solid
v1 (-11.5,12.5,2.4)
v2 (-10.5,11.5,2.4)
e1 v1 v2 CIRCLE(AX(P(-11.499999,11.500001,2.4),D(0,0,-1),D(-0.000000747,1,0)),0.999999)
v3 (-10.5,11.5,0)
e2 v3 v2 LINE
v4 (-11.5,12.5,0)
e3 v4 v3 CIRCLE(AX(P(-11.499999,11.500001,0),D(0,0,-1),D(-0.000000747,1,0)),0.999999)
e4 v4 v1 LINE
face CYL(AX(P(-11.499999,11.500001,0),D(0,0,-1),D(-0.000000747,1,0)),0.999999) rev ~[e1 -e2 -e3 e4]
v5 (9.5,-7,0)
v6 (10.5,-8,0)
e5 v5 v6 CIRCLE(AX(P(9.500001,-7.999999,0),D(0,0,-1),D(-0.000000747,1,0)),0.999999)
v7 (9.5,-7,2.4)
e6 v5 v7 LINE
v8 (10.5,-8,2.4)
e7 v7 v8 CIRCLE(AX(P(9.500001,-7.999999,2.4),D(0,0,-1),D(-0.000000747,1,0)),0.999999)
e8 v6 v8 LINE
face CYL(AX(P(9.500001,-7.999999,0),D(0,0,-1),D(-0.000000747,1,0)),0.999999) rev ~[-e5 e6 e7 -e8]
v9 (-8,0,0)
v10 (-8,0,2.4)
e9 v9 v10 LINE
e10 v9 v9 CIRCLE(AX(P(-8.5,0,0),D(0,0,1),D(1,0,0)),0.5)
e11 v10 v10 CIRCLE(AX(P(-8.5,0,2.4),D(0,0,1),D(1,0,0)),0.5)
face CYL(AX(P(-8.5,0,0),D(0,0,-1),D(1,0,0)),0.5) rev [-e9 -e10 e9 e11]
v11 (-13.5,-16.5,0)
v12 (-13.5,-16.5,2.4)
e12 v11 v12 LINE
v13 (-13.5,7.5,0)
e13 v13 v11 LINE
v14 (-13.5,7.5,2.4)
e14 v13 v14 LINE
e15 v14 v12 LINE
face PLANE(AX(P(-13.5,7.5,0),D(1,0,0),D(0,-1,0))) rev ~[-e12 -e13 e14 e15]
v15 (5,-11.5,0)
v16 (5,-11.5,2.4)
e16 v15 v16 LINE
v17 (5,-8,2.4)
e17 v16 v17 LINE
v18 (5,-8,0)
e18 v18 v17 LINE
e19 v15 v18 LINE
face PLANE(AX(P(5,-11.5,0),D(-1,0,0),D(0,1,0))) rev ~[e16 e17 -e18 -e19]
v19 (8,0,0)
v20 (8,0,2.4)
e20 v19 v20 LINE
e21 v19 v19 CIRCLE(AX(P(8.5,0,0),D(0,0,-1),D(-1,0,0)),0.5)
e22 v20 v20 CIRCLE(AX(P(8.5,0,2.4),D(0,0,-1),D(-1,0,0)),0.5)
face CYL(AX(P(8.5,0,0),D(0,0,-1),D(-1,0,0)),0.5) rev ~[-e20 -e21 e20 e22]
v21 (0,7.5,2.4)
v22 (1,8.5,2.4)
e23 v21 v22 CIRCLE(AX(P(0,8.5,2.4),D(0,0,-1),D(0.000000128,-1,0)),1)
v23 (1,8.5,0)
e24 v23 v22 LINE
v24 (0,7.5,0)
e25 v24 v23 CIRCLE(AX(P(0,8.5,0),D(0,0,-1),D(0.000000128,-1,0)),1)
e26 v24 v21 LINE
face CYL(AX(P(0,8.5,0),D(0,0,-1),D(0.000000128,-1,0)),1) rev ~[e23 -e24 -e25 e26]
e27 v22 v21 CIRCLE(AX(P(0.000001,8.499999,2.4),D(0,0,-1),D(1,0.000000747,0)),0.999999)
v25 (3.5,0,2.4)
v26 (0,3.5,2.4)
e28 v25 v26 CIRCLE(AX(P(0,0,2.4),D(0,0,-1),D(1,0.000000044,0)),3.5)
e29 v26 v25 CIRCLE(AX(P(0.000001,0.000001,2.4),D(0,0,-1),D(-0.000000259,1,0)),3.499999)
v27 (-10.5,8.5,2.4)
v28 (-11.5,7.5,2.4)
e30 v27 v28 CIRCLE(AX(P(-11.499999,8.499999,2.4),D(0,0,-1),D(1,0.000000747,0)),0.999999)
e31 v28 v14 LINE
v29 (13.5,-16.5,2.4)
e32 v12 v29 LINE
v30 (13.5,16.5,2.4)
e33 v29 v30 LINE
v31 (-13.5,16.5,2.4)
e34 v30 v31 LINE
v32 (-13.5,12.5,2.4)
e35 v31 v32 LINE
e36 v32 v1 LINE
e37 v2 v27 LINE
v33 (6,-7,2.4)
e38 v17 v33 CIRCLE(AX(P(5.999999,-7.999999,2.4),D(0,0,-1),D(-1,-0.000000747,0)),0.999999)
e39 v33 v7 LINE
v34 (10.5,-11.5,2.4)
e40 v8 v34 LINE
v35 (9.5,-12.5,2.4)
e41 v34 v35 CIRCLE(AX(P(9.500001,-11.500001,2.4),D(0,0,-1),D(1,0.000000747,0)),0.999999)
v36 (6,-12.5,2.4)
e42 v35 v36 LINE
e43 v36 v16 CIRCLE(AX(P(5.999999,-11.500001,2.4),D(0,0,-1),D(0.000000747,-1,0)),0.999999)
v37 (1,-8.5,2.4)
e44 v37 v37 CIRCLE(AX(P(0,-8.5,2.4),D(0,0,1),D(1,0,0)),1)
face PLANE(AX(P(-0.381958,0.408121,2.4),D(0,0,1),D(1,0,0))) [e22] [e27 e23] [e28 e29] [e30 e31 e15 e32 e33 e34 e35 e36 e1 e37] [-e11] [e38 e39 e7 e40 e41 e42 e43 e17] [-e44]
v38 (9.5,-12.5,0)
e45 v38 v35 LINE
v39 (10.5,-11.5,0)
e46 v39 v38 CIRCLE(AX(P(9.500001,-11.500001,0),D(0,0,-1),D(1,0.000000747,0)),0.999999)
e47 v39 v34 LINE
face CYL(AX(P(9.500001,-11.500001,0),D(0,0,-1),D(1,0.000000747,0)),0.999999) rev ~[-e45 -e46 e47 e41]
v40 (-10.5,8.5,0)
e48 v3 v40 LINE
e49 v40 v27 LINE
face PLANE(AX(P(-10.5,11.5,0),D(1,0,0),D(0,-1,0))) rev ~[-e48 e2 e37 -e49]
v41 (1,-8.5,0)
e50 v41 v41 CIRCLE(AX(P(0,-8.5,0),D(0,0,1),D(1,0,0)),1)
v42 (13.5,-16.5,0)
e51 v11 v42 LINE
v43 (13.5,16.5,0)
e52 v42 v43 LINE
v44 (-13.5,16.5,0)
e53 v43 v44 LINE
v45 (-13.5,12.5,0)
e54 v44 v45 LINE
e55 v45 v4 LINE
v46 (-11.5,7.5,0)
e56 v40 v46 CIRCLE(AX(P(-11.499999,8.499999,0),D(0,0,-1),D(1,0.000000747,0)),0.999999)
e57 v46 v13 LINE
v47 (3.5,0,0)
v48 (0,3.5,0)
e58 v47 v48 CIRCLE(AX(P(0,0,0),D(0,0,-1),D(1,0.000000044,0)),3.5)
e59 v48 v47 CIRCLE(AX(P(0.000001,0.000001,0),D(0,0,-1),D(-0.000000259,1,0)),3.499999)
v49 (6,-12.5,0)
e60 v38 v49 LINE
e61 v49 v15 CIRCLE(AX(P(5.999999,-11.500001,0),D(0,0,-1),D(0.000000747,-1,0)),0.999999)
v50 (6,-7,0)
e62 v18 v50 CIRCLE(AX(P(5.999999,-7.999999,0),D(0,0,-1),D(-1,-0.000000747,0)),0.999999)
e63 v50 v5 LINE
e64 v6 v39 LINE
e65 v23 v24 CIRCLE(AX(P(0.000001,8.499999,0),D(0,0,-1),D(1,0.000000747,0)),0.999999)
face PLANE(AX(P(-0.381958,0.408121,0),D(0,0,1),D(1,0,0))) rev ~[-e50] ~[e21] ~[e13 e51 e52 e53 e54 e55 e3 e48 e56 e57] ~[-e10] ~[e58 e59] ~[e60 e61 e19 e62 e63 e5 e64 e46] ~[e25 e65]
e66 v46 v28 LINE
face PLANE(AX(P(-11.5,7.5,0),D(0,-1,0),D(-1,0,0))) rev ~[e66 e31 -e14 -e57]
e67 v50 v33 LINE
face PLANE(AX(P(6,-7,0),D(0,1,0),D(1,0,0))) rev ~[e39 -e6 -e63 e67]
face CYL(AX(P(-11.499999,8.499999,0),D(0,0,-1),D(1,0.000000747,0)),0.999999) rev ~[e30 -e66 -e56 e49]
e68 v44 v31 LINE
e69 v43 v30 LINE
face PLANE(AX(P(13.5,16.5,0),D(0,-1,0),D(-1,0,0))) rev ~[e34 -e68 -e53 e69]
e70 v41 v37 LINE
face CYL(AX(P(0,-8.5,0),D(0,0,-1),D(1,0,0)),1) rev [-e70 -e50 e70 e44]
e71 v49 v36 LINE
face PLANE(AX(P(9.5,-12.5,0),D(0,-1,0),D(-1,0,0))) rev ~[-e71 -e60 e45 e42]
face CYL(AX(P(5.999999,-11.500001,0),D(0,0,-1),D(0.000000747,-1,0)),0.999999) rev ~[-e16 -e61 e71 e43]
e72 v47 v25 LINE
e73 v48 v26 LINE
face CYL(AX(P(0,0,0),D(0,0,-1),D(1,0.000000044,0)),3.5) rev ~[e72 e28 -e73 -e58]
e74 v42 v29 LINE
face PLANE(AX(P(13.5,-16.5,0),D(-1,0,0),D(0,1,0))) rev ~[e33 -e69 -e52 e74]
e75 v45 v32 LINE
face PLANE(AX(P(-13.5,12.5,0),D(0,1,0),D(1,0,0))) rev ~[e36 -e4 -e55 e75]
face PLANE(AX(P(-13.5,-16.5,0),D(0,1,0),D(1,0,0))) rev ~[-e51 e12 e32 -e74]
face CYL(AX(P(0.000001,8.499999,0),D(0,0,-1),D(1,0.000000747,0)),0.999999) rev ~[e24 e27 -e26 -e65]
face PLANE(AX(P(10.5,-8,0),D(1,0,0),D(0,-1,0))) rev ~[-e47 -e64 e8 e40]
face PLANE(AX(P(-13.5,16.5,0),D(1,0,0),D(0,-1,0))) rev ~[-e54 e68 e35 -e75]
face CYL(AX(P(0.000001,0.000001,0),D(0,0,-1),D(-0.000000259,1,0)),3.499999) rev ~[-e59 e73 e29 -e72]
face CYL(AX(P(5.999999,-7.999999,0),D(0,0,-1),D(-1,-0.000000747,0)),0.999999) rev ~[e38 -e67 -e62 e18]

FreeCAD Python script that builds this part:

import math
import FreeCAD as App
import Part
import Sketcher

V = App.Vector
Q = App.Units.Quantity

doc = App.newDocument("Part")
params = doc.addObject("Spreadsheet::Sheet", "Params")
for row, (alias, value) in enumerate([
    ("sketch1_diameter", "2 mm"),
    ("sketch1_diameter2", "1 mm"),
    ("sketch1_radius", "3.5 mm"),
    ("sketch1_width", "27 mm"),
    ("sketch1_width2", "2 mm"),
    ("pad1_length", "2.4 mm"),
], start=1):
    params.set(f"A{row}", alias)
    params.set(f"B{row}", "=" + value)
    params.setAlias(f"B{row}", alias)

body = doc.addObject("PartDesign::Body", "Body")

# Sketch on XY plane
sketch1 = doc.addObject("Sketcher::SketchObject", "Sketch")
body.addObject(sketch1)
sketch1.AttachmentSupport = (doc.XY_Plane, [""])
sketch1.MapMode = "FlatFace"
sketch1.addGeometry(Part.LineSegment(V(-13.5, -16.5, 0), V(13.5, -16.5, 0)), False)
sketch1.addGeometry(Part.LineSegment(V(13.5, -16.5, 0), V(13.5, 16.5, 0)), False)
sketch1.addGeometry(Part.LineSegment(V(13.5, 16.5, 0), V(-13.5, 16.5, 0)), False)
sketch1.addGeometry(Part.LineSegment(V(-13.5, 16.5, 0), V(-13.5, 12.5, 0)), False)
sketch1.addGeometry(Part.LineSegment(V(-13.5, 12.5, 0), V(-11.5, 12.5, 0)), False)
sketch1.addGeometry(Part.ArcOfCircle(Part.Circle(V(-11.5, 11.5, 0), V(0, 0, 1), 1), math.radians(0), math.radians(90)), False)
sketch1.addGeometry(Part.LineSegment(V(-10.5, 11.5, 0), V(-10.5, 8.5, 0)), False)
sketch1.addGeometry(Part.ArcOfCircle(Part.Circle(V(-11.5, 8.5, 0), V(0, 0, 1), 1), math.radians(-90), math.radians(0)), False)
sketch1.addGeometry(Part.LineSegment(V(-11.5, 7.5, 0), V(-13.5, 7.5, 0)), False)
sketch1.addGeometry(Part.LineSegment(V(-13.5, 7.5, 0), V(-13.5, -16.5, 0)), False)
sketch1.addGeometry(Part.Circle(V(0, -8.5, 0), V(0, 0, 1), 1), False)
sketch1.addGeometry(Part.LineSegment(V(10.5, -8, 0), V(10.5, -11.5, 0)), False)
sketch1.addGeometry(Part.ArcOfCircle(Part.Circle(V(9.5, -11.5, 0), V(0, 0, 1), 1), math.radians(-90), math.radians(0)), False)
sketch1.addGeometry(Part.LineSegment(V(9.5, -12.5, 0), V(6, -12.5, 0)), False)
sketch1.addGeometry(Part.ArcOfCircle(Part.Circle(V(6, -11.5, 0), V(0, 0, 1), 1), math.radians(180), math.radians(270)), False)
sketch1.addGeometry(Part.LineSegment(V(5, -11.5, 0), V(5, -8, 0)), False)
sketch1.addGeometry(Part.ArcOfCircle(Part.Circle(V(6, -8, 0), V(0, 0, 1), 1), math.radians(90), math.radians(180)), False)
sketch1.addGeometry(Part.LineSegment(V(6, -7, 0), V(9.5, -7, 0)), False)
sketch1.addGeometry(Part.ArcOfCircle(Part.Circle(V(9.5, -8, 0), V(0, 0, 1), 1), math.radians(0), math.radians(90)), False)
sketch1.addGeometry(Part.Circle(V(-8.5, 0, 0), V(0, 0, 1), 0.5), False)
sketch1.addGeometry(Part.ArcOfCircle(Part.Circle(V(0, 0, 0), V(0, 0, 1), 3.5), math.radians(90), math.radians(360)), False)
sketch1.addGeometry(Part.ArcOfCircle(Part.Circle(V(0, 0, 0), V(0, 0, 1), 3.5), math.radians(0), math.radians(90)), False)
sketch1.addGeometry(Part.ArcOfCircle(Part.Circle(V(0, 8.5, 0), V(0, 0, 1), 1), math.radians(0), math.radians(270)), False)
sketch1.addGeometry(Part.ArcOfCircle(Part.Circle(V(0, 8.5, 0), V(0, 0, 1), 1), math.radians(-90), math.radians(0)), False)
sketch1.addGeometry(Part.Circle(V(8.5, 0, 0), V(0, 0, 1), 0.5), False)
sketch1.addConstraint(Sketcher.Constraint("Coincident", 0, 2, 1, 1))
sketch1.addConstraint(Sketcher.Constraint("Coincident", 1, 2, 2, 1))
sketch1.addConstraint(Sketcher.Constraint("Coincident", 2, 2, 3, 1))
sketch1.addConstraint(Sketcher.Constraint("Coincident", 3, 2, 4, 1))
sketch1.addConstraint(Sketcher.Constraint("Tangent", 4, 2, 5, 2))
sketch1.addConstraint(Sketcher.Constraint("Tangent", 5, 1, 6, 1))
sketch1.addConstraint(Sketcher.Constraint("Tangent", 6, 2, 7, 2))
sketch1.addConstraint(Sketcher.Constraint("Tangent", 7, 1, 8, 1))
sketch1.addConstraint(Sketcher.Constraint("Coincident", 8, 2, 9, 1))
sketch1.addConstraint(Sketcher.Constraint("Coincident", 9, 2, 0, 1))
sketch1.addConstraint(Sketcher.Constraint("Tangent", 11, 2, 12, 2))
sketch1.addConstraint(Sketcher.Constraint("Tangent", 12, 1, 13, 1))
sketch1.addConstraint(Sketcher.Constraint("Tangent", 13, 2, 14, 2))
sketch1.addConstraint(Sketcher.Constraint("Tangent", 14, 1, 15, 1))
sketch1.addConstraint(Sketcher.Constraint("Tangent", 15, 2, 16, 2))
sketch1.addConstraint(Sketcher.Constraint("Tangent", 16, 1, 17, 1))
sketch1.addConstraint(Sketcher.Constraint("Tangent", 17, 2, 18, 2))
sketch1.addConstraint(Sketcher.Constraint("Tangent", 18, 1, 11, 1))
sketch1.addConstraint(Sketcher.Constraint("Tangent", 20, 1, 21, 2))
sketch1.addConstraint(Sketcher.Constraint("Coincident", 21, 1, 20, 2))
sketch1.addConstraint(Sketcher.Constraint("Tangent", 22, 1, 23, 2))
sketch1.addConstraint(Sketcher.Constraint("Coincident", 23, 1, 22, 2))
sketch1.addConstraint(Sketcher.Constraint("Horizontal", 0))
sketch1.addConstraint(Sketcher.Constraint("Vertical", 1))
sketch1.addConstraint(Sketcher.Constraint("Horizontal", 2))
sketch1.addConstraint(Sketcher.Constraint("Vertical", 3))
sketch1.addConstraint(Sketcher.Constraint("Horizontal", 4))
sketch1.addConstraint(Sketcher.Constraint("Vertical", 6))
sketch1.addConstraint(Sketcher.Constraint("Horizontal", 8))
sketch1.addConstraint(Sketcher.Constraint("Vertical", 9))
sketch1.addConstraint(Sketcher.Constraint("Vertical", 11))
sketch1.addConstraint(Sketcher.Constraint("Horizontal", 13))
sketch1.addConstraint(Sketcher.Constraint("Vertical", 15))
sketch1.addConstraint(Sketcher.Constraint("Horizontal", 17))
sketch1.addConstraint(Sketcher.Constraint("Coincident", 20, 3, -1, 1))
sketch1.addConstraint(Sketcher.Constraint("Equal", 5, 7))
sketch1.addConstraint(Sketcher.Constraint("Equal", 7, 10))
sketch1.addConstraint(Sketcher.Constraint("Equal", 10, 12))
sketch1.addConstraint(Sketcher.Constraint("Equal", 12, 14))
sketch1.addConstraint(Sketcher.Constraint("Equal", 14, 16))
sketch1.addConstraint(Sketcher.Constraint("Equal", 16, 18))
sketch1.addConstraint(Sketcher.Constraint("Equal", 18, 22))
sketch1.addConstraint(Sketcher.Constraint("Equal", 19, 24))
sketch1.addConstraint(Sketcher.Constraint("Symmetric", 10, 3, 22, 3, -1, 1))
sketch1.addConstraint(Sketcher.Constraint("Symmetric", 19, 3, 24, 3, -1, 1))
sketch1.addConstraint(Sketcher.Constraint("Symmetric", 0, 2, 2, 2, -1, 1))
sketch1.addConstraint(Sketcher.Constraint("Symmetric", 5, 1, 11, 2, -1, 1))
sketch1.addConstraint(Sketcher.Constraint("PointOnObject", 10, 3, -2))
sketch1.addConstraint(Sketcher.Constraint("PointOnObject", 19, 3, -1))
sketch1.addConstraint(Sketcher.Constraint("PointOnObject", 20, 1, -2))
sketch1.addConstraint(Sketcher.Constraint("PointOnObject", 21, 1, -1))
sketch1.addConstraint(Sketcher.Constraint("PointOnObject", 23, 1, -2))
sketch1.addConstraint(Sketcher.Constraint("Horizontal", 7, 3, 22, 3))
sketch1.addConstraint(Sketcher.Constraint("Horizontal", 6, 2, 22, 1))
sketch1.addConstraint(Sketcher.Constraint("Vertical", 3, 2, 8, 2))
sketch1.addConstraint(Sketcher.Constraint("Equal", 17, 11))
sketch1.addConstraint(Sketcher.Constraint("Diameter", 10, Q("2 mm")))
sketch1.addConstraint(Sketcher.Constraint("Diameter", 19, Q("1 mm")))
sketch1.addConstraint(Sketcher.Constraint("Radius", 20, Q("3.5 mm")))
sketch1.addConstraint(Sketcher.Constraint("DistanceX", 0, 1, 0, 2, Q("27 mm")))
sketch1.addConstraint(Sketcher.Constraint("DistanceX", 4, 1, 4, 2, Q("2 mm")))
sketch1.addConstraint(Sketcher.Constraint("DistanceY", 1, 1, 1, 2, Q("33 mm")))
sketch1.addConstraint(Sketcher.Constraint("DistanceY", 3, 2, 3, 1, Q("4 mm")))
sketch1.addConstraint(Sketcher.Constraint("DistanceY", 6, 2, 6, 1, Q("3 mm")))
sketch1.addConstraint(Sketcher.Constraint("DistanceX", 13, 2, 13, 1, Q("3.5 mm")))
sketch1.addConstraint(Sketcher.Constraint("DistanceX", 7, 3, 19, 3, Q("2.999999 mm")))
sketch1.setExpression("Constraints[56]", "Params.sketch1_diameter")
sketch1.setExpression("Constraints[57]", "Params.sketch1_diameter2")
sketch1.setExpression("Constraints[58]", "Params.sketch1_radius")
sketch1.setExpression("Constraints[59]", "Params.sketch1_width")
sketch1.setExpression("Constraints[60]", "Params.sketch1_width2")
pad1 = doc.addObject("PartDesign::Pad", "Pad")
body.addObject(pad1)
pad1.Profile = sketch1
pad1.setExpression("Length", "Params.pad1_length")

doc.recompute()
